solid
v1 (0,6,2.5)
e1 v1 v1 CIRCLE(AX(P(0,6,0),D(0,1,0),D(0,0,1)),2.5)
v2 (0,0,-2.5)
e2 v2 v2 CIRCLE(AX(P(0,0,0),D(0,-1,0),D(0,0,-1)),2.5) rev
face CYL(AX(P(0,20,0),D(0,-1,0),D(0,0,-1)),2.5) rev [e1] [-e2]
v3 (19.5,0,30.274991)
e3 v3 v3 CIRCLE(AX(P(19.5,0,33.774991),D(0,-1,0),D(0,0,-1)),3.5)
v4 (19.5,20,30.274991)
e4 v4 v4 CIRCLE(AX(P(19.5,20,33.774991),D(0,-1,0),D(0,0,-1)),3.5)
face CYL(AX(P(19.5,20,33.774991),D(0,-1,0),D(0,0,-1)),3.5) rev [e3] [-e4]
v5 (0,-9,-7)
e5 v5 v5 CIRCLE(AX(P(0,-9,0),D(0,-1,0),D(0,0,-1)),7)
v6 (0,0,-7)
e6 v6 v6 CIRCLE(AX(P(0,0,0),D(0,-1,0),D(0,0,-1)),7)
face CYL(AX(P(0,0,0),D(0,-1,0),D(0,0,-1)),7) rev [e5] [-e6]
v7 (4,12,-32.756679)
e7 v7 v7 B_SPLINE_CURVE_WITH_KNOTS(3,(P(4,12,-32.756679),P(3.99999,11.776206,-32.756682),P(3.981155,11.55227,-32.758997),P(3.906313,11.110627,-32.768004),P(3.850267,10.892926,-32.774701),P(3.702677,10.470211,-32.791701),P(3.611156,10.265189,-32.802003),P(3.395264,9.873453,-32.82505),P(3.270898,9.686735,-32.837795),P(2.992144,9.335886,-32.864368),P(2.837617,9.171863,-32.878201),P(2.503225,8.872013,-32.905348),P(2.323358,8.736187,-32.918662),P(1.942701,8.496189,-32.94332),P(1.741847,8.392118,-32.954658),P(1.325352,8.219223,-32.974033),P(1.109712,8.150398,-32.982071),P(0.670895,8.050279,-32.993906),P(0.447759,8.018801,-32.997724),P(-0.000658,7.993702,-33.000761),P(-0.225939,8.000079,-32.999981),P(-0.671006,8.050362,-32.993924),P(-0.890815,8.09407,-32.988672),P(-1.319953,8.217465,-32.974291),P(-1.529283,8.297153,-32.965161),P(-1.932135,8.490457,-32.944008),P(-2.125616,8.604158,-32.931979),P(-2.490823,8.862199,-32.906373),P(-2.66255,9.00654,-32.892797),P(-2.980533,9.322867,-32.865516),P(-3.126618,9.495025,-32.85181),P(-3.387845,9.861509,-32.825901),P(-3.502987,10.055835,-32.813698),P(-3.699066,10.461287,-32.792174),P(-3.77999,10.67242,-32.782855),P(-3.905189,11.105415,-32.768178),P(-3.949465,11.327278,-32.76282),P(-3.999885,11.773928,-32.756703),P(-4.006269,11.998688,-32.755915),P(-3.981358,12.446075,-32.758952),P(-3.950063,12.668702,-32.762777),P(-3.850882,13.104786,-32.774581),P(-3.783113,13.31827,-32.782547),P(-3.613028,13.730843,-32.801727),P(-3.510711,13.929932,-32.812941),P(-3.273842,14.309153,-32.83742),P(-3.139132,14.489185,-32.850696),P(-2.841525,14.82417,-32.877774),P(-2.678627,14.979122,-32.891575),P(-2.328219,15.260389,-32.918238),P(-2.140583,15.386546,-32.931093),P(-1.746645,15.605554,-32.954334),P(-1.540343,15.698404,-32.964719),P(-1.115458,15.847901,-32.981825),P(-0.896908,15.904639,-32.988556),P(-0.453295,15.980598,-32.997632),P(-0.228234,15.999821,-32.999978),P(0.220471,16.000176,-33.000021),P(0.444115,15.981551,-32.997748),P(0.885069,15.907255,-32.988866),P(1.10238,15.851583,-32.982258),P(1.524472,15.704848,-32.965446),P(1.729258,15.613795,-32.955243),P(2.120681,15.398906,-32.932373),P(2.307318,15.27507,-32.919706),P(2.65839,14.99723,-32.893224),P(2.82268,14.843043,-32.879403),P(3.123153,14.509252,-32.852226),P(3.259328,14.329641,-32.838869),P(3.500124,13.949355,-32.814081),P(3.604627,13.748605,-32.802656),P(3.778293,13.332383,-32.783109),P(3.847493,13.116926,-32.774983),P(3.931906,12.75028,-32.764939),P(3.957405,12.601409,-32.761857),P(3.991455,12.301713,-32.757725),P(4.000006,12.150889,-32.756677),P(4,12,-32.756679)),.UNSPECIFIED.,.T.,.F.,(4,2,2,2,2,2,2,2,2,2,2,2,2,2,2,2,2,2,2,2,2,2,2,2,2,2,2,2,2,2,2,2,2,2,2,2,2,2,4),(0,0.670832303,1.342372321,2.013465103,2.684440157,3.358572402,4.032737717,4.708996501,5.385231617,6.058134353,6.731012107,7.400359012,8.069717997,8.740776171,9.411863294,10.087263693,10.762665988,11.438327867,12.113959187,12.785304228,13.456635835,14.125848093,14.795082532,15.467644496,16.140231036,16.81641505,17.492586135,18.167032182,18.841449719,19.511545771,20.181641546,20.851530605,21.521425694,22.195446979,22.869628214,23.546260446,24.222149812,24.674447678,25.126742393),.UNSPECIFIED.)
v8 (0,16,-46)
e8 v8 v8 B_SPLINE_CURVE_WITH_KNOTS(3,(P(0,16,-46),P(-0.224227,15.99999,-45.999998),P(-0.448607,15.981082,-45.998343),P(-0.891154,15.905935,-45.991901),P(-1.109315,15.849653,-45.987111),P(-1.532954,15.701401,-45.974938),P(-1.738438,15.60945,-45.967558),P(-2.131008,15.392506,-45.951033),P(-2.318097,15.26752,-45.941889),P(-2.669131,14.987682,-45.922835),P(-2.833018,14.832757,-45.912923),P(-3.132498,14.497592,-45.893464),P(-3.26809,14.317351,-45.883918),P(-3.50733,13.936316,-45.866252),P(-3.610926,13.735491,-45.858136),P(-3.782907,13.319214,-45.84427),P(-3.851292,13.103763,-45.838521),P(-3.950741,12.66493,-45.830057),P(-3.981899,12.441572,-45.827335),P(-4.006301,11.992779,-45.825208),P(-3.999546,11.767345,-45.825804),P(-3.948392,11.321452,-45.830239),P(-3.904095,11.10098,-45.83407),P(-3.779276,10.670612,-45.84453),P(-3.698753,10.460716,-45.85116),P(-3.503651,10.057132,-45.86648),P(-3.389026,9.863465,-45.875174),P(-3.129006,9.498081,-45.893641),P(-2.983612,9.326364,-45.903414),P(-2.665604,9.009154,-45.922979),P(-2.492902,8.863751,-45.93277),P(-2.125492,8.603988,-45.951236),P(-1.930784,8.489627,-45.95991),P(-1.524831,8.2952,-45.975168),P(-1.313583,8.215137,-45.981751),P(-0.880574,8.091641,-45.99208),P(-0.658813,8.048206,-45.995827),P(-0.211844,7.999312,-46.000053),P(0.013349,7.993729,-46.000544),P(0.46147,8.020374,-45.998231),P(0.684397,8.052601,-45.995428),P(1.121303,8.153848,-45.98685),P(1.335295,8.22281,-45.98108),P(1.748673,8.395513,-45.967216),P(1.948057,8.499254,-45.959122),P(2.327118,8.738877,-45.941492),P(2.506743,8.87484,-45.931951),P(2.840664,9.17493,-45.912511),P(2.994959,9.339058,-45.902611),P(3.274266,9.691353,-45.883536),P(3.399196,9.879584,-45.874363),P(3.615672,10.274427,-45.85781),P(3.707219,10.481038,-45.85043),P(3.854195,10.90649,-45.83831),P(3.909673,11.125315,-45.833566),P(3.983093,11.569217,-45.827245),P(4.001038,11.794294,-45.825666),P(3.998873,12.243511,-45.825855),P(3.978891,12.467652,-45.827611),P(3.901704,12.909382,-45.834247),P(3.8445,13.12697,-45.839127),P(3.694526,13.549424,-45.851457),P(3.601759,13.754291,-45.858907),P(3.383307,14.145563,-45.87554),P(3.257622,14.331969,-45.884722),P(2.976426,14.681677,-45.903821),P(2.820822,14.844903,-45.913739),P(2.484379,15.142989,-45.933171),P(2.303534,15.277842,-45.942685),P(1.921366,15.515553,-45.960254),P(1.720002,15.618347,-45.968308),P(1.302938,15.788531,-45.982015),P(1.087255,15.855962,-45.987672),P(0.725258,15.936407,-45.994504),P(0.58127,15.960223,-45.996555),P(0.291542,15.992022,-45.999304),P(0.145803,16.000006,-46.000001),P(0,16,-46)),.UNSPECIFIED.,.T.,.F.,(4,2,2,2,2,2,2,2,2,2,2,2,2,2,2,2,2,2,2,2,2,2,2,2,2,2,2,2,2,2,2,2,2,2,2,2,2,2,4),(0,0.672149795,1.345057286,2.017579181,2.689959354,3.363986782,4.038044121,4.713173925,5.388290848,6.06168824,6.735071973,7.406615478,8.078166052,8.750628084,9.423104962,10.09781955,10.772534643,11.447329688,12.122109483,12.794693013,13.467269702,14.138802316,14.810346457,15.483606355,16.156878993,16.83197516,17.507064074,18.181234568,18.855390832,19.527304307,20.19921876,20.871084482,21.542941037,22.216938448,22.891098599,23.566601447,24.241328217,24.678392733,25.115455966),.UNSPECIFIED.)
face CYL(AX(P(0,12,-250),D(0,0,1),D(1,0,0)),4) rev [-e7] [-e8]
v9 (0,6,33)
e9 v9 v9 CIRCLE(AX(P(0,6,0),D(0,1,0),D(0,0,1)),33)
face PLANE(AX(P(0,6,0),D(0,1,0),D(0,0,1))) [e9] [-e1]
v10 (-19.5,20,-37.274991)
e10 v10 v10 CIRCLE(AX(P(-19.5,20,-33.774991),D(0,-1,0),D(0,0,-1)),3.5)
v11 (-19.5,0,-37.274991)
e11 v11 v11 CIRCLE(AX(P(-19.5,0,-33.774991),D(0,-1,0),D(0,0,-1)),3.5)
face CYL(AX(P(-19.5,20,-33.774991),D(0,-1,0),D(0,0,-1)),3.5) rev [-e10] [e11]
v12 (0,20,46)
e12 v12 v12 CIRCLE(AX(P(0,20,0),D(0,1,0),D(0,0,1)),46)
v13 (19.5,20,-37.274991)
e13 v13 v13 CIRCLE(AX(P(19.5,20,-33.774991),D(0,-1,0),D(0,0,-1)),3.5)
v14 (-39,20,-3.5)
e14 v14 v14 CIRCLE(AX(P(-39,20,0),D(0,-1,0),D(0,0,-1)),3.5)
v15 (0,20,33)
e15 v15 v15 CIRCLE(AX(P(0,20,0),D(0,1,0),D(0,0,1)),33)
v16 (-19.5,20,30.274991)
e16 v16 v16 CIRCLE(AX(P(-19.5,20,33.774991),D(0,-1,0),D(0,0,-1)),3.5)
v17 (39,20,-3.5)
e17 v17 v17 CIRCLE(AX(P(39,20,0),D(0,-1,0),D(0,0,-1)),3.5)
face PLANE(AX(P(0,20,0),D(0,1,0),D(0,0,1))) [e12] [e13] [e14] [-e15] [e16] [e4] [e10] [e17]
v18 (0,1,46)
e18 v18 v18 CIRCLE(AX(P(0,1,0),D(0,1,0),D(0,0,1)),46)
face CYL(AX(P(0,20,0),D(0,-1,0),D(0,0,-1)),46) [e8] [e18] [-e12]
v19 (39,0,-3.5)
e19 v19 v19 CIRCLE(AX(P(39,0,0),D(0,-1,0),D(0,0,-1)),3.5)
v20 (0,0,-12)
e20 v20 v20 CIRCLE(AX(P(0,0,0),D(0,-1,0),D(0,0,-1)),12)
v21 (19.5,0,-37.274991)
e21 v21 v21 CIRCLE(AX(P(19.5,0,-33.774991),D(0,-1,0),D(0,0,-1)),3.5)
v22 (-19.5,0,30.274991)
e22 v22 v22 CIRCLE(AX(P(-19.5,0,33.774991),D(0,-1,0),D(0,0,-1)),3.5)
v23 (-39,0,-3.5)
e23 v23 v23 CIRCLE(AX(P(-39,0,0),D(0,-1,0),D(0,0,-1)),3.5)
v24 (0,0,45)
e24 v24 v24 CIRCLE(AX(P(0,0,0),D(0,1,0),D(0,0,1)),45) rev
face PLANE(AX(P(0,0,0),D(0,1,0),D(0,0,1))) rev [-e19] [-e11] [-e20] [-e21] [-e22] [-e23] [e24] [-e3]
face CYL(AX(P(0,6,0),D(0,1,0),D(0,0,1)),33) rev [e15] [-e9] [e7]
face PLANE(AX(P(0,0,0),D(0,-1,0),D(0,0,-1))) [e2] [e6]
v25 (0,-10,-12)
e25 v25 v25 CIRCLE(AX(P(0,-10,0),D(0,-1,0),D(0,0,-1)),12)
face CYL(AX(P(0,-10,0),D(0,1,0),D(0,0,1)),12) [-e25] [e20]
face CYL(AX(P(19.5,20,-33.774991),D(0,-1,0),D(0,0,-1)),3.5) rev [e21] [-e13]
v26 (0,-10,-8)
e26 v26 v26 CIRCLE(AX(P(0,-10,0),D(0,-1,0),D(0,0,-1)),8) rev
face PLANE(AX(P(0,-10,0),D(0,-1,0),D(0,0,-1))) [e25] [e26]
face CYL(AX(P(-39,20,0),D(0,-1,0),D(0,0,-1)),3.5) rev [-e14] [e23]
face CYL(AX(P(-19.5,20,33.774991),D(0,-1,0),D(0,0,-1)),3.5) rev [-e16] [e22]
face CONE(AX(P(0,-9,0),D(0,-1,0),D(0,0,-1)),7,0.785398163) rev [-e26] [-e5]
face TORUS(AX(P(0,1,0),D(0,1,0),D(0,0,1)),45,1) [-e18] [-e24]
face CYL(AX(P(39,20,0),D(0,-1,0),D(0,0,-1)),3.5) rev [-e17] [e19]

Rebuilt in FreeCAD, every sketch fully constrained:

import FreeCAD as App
import Part
import Sketcher


def edges_at(feature, points):
    """Names of the edges that pass closest to the given points."""
    edges = feature.Shape.Edges
    near = lambda p: min(range(len(edges)), key=lambda i: edges[i].distToShape(Part.Vertex(*p))[0])
    return sorted({f"Edge{near(p) + 1}" for p in points})

doc = App.newDocument("Part")
params = doc.addObject("Spreadsheet::Sheet", "Params")
for row, (alias, value) in enumerate([
    ("sketch1_diameter", "92 mm"),
    ("pad1_length", "20 mm"),
    ("sketch2_diameter", "24 mm"),
    ("pad2_length", "10 mm"),
    ("sketch3_diameter", "66 mm"),
    ("pocket1_length", "14 mm"),
    ("sketch4_diameter", "5 mm"),
    ("sketch5_diameter", "7 mm"),
    ("fillet_radius", "1 mm"),
    ("sketch6_diameter", "14 mm"),
    ("pocket4_length", "10 mm"),
    ("chamfer_size", "1 mm"),
    ("sketch7_diameter", "8 mm"),
    ("pocket5_length", "250 mm"),
], start=1):
    params.set(f"A{row}", alias)
    params.set(f"B{row}", "=" + value)
    params.setAlias(f"B{row}", alias)

body = doc.addObject("PartDesign::Body", "Body")

sketch1 = doc.addObject("Sketcher::SketchObject", "Sketch")
body.addObject(sketch1)
sketch1.AttachmentSupport = (doc.XZ_Plane, [""])
sketch1.MapMode = "FlatFace"
sketch1.addGeometry(Part.Circle(App.Vector(0, 0, 0), App.Vector(0, 0, 1), 46), False)
sketch1.addConstraint([
    Sketcher.Constraint("Coincident", 0, 3, -1, 1),
    Sketcher.Constraint("Diameter", 0, 92.0),
])
sketch1.setExpression("Constraints[1]", "Params.sketch1_diameter")
pad1 = doc.addObject("PartDesign::Pad", "Pad")
body.addObject(pad1)
pad1.Profile = sketch1
pad1.setExpression("Length", "Params.pad1_length")
pad1.Reversed = True

sketch2 = doc.addObject("Sketcher::SketchObject", "Sketch001")
body.addObject(sketch2)
sketch2.AttachmentSupport = (doc.XZ_Plane, [""])
sketch2.MapMode = "FlatFace"
sketch2.addGeometry(Part.Circle(App.Vector(0, 0, 0), App.Vector(0, 0, 1), 12), False)
sketch2.addConstraint([
    Sketcher.Constraint("Coincident", 0, 3, -1, 1),
    Sketcher.Constraint("Diameter", 0, 24.0),
])
sketch2.setExpression("Constraints[1]", "Params.sketch2_diameter")
pad2 = doc.addObject("PartDesign::Pad", "Pad001")
body.addObject(pad2)
pad2.Profile = sketch2
pad2.setExpression("Length", "Params.pad2_length")

sketch3 = doc.addObject("Sketcher::SketchObject", "Sketch002")
body.addObject(sketch3)
sketch3.AttachmentSupport = (doc.XZ_Plane, [""])
sketch3.MapMode = "FlatFace"
sketch3.AttachmentOffset = App.Placement(App.Vector(0, 0, -20), App.Rotation())
sketch3.addGeometry(Part.Circle(App.Vector(0, 0, 0), App.Vector(0, 0, 1), 33), False)
sketch3.addConstraint([
    Sketcher.Constraint("Coincident", 0, 3, -1, 1),
    Sketcher.Constraint("Diameter", 0, 66.0),
])
sketch3.setExpression("Constraints[1]", "Params.sketch3_diameter")
pocket1 = doc.addObject("PartDesign::Pocket", "Pocket")
body.addObject(pocket1)
pocket1.Profile = sketch3
pocket1.setExpression("Length", "Params.pocket1_length")
pocket1.Reversed = True

sketch4 = doc.addObject("Sketcher::SketchObject", "Sketch003")
body.addObject(sketch4)
sketch4.AttachmentSupport = (doc.XZ_Plane, [""])
sketch4.MapMode = "FlatFace"
sketch4.AttachmentOffset = App.Placement(App.Vector(0, 0, 10), App.Rotation())
sketch4.addGeometry(Part.Circle(App.Vector(0, 0, 0), App.Vector(0, 0, 1), 2.5), False)
sketch4.addConstraint([
    Sketcher.Constraint("Coincident", 0, 3, -1, 1),
    Sketcher.Constraint("Diameter", 0, 5.0),
])
sketch4.setExpression("Constraints[1]", "Params.sketch4_diameter")
pocket2 = doc.addObject("PartDesign::Pocket", "Pocket001")
body.addObject(pocket2)
pocket2.Profile = sketch4
pocket2.Type = "ThroughAll"

sketch5 = doc.addObject("Sketcher::SketchObject", "Sketch004")
body.addObject(sketch5)
sketch5.AttachmentSupport = (doc.XZ_Plane, [""])
sketch5.MapMode = "FlatFace"
sketch5.addGeometry([
    Part.Circle(App.Vector(-39, 0, 0), App.Vector(0, 0, 1), 3.5),
    Part.Circle(App.Vector(-19.5, 33.8, 0), App.Vector(0, 0, 1), 3.5),
    Part.Circle(App.Vector(19.5, 33.8, 0), App.Vector(0, 0, 1), 3.5),
    Part.Circle(App.Vector(39, 0, 0), App.Vector(0, 0, 1), 3.5),
    Part.Circle(App.Vector(19.5, -33.8, 0), App.Vector(0, 0, 1), 3.5),
    Part.Circle(App.Vector(-19.5, -33.8, 0), App.Vector(0, 0, 1), 3.5),
], False)
sketch5.addConstraint([
    Sketcher.Constraint("Equal", 0, 1),
    Sketcher.Constraint("Equal", 1, 2),
    Sketcher.Constraint("Equal", 2, 3),
    Sketcher.Constraint("Equal", 3, 4),
    Sketcher.Constraint("Equal", 4, 5),
    Sketcher.Constraint("Symmetric", 0, 3, 3, 3, -1, 1),
    Sketcher.Constraint("Symmetric", 1, 3, 4, 3, -1, 1),
    Sketcher.Constraint("Symmetric", 2, 3, 5, 3, -1, 1),
    Sketcher.Constraint("Symmetric", 1, 3, 2, 3, -2),
    Sketcher.Constraint("PointOnObject", 0, 3, -1),
    Sketcher.Constraint("Diameter", 0, 7.0),
    Sketcher.Constraint("DistanceX", 0, 3, -1, 1, 39.0),
    Sketcher.Constraint("DistanceX", 1, 3, 2, 3, 39.0),
    Sketcher.Constraint("DistanceY", -1, 1, 1, 3, 33.774991),
])
sketch5.setExpression("Constraints[10]", "Params.sketch5_diameter")
pocket3 = doc.addObject("PartDesign::Pocket", "Pocket002")
body.addObject(pocket3)
pocket3.Profile = sketch5
pocket3.Type = "ThroughAll"
doc.recompute()

fillet = doc.addObject("PartDesign::Fillet", "Fillet")
body.addObject(fillet)
fillet.Base = (pocket3, edges_at(pocket3, [(0, 0, -46)]))
fillet.setExpression("Radius", "Params.fillet_radius")

sketch6 = doc.addObject("Sketcher::SketchObject", "Sketch005")
body.addObject(sketch6)
sketch6.AttachmentSupport = (doc.XZ_Plane, [""])
sketch6.MapMode = "FlatFace"
sketch6.AttachmentOffset = App.Placement(App.Vector(0, 0, 10), App.Rotation())
sketch6.addGeometry(Part.Circle(App.Vector(0, 0, 0), App.Vector(0, 0, 1), 7), False)
sketch6.addConstraint([
    Sketcher.Constraint("Coincident", 0, 3, -1, 1),
    Sketcher.Constraint("Diameter", 0, 14.0),
])
sketch6.setExpression("Constraints[1]", "Params.sketch6_diameter")
pocket4 = doc.addObject("PartDesign::Pocket", "Pocket003")
body.addObject(pocket4)
pocket4.Profile = sketch6
pocket4.setExpression("Length", "Params.pocket4_length")
doc.recompute()

chamfer = doc.addObject("PartDesign::Chamfer", "Chamfer")
body.addObject(chamfer)
chamfer.Base = (pocket4, edges_at(pocket4, [(0, -10, 7)]))
chamfer.setExpression("Size", "Params.chamfer_size")

sketch7 = doc.addObject("Sketcher::SketchObject", "Sketch006")
body.addObject(sketch7)
sketch7.AttachmentSupport = (doc.XY_Plane, [""])
sketch7.MapMode = "FlatFace"
sketch7.addGeometry(Part.Circle(App.Vector(0, 12, 0), App.Vector(0, 0, 1), 4), False)
sketch7.addConstraint([
    Sketcher.Constraint("PointOnObject", 0, 3, -2),
    Sketcher.Constraint("Diameter", 0, 8.0),
    Sketcher.Constraint("DistanceY", -1, 1, 0, 3, 12.0),
])
sketch7.setExpression("Constraints[1]", "Params.sketch7_diameter")
pocket5 = doc.addObject("PartDesign::Pocket", "Pocket004")
body.addObject(pocket5)
pocket5.Profile = sketch7
pocket5.setExpression("Length", "Params.pocket5_length")

doc.recompute()
